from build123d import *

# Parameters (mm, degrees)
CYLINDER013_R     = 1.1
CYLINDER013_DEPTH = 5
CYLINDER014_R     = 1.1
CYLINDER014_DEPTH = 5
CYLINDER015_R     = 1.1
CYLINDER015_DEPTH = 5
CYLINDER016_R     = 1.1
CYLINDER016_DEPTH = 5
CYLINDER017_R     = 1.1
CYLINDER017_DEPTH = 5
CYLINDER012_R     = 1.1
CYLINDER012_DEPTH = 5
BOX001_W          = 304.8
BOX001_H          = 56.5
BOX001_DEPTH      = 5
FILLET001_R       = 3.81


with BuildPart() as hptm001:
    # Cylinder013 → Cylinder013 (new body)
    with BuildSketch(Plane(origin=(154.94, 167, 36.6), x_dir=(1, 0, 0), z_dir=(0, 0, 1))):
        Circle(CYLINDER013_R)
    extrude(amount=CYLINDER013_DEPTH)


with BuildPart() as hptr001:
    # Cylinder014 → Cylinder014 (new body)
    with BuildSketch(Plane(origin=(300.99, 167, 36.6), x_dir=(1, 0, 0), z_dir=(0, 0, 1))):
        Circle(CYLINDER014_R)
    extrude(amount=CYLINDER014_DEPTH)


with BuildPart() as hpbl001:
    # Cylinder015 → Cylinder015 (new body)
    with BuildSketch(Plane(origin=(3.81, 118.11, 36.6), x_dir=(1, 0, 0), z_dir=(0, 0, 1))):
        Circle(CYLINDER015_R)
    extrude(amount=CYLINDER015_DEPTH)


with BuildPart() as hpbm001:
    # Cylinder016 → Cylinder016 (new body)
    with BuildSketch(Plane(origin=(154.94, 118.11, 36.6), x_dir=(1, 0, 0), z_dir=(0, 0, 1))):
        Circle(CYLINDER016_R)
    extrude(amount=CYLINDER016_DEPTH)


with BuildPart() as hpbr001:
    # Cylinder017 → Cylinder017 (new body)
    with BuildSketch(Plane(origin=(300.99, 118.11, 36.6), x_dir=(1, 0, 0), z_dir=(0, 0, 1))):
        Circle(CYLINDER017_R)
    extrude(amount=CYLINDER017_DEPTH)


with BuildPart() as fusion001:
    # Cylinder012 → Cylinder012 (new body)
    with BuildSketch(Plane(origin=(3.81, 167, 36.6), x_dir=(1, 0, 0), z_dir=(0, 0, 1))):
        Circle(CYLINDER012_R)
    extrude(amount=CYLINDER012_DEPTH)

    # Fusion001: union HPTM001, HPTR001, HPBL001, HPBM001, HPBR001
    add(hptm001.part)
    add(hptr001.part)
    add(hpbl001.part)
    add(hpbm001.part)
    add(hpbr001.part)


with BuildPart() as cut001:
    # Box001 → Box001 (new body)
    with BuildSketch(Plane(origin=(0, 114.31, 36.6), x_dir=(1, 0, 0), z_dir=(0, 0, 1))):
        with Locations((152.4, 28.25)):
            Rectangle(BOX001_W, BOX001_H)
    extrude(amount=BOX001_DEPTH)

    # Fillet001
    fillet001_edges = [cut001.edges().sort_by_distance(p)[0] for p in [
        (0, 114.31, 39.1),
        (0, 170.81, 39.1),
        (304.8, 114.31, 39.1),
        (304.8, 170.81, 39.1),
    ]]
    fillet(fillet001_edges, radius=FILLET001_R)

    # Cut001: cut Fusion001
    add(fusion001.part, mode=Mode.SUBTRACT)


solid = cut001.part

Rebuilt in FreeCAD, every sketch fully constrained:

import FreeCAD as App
import Part
import Sketcher
Q = App.Units.Quantity


def edges_at(feature, points):
    """Names of the edges that pass closest to the given points."""
    edges = feature.Shape.Edges
    near = lambda p: min(range(len(edges)), key=lambda i: edges[i].distToShape(Part.Vertex(*p))[0])
    return sorted({f"Edge{near(p) + 1}" for p in points})

doc = App.newDocument("Part")
body = doc.addObject("PartDesign::Body", "Body")

# Sketch on XY plane
sketch1 = body.newObject("Sketcher::SketchObject", "Sketch")
sketch1.AttachmentSupport = (doc.getObject("XY_Plane"), [""])
sketch1.MapMode = "FlatFace"
sketch1.AttachmentOffset = App.Placement(App.Vector(0, 0, 36.6), App.Rotation())
sketch1.addGeometry(Part.Circle(App.Vector(154.94, 167, 0), App.Vector(0, 0, 1), 1.1), False)
sketch1.addConstraint([
    Sketcher.Constraint("Diameter", 0, Q("2.2 mm")),
    Sketcher.Constraint("DistanceY", -1, 1, 0, 3, Q("167 mm")),
    Sketcher.Constraint("DistanceX", -1, 1, 0, 3, Q("154.94 mm")),
])
pad1 = body.newObject("PartDesign::Pad", "Pad")
pad1.Profile = sketch1
pad1.Length = 5
body2 = doc.addObject("PartDesign::Body", "Body001")

# Sketch on XY plane
sketch2 = body2.newObject("Sketcher::SketchObject", "Sketch001")
sketch2.AttachmentSupport = (doc.getObject("XY_Plane001"), [""])
sketch2.MapMode = "FlatFace"
sketch2.AttachmentOffset = App.Placement(App.Vector(0, 0, 36.6), App.Rotation())
sketch2.addGeometry(Part.Circle(App.Vector(300.99, 167, 0), App.Vector(0, 0, 1), 1.1), False)
sketch2.addConstraint([
    Sketcher.Constraint("Diameter", 0, Q("2.2 mm")),
    Sketcher.Constraint("DistanceY", -1, 1, 0, 3, Q("167 mm")),
    Sketcher.Constraint("DistanceX", -1, 1, 0, 3, Q("300.99 mm")),
])
pad2 = body2.newObject("PartDesign::Pad", "Pad001")
pad2.Profile = sketch2
pad2.Length = 5
body3 = doc.addObject("PartDesign::Body", "Body002")

# Sketch on XY plane
sketch3 = body3.newObject("Sketcher::SketchObject", "Sketch002")
sketch3.AttachmentSupport = (doc.getObject("XY_Plane002"), [""])
sketch3.MapMode = "FlatFace"
sketch3.AttachmentOffset = App.Placement(App.Vector(0, 0, 36.6), App.Rotation())
sketch3.addGeometry(Part.Circle(App.Vector(3.81, 118.11, 0), App.Vector(0, 0, 1), 1.1), False)
sketch3.addConstraint([
    Sketcher.Constraint("Diameter", 0, Q("2.2 mm")),
    Sketcher.Constraint("DistanceX", -1, 1, 0, 3, Q("3.81 mm")),
    Sketcher.Constraint("DistanceY", -1, 1, 0, 3, Q("118.11 mm")),
])
pad3 = body3.newObject("PartDesign::Pad", "Pad002")
pad3.Profile = sketch3
pad3.Length = 5
body4 = doc.addObject("PartDesign::Body", "Body003")

# Sketch on XY plane
sketch4 = body4.newObject("Sketcher::SketchObject", "Sketch003")
sketch4.AttachmentSupport = (doc.getObject("XY_Plane003"), [""])
sketch4.MapMode = "FlatFace"
sketch4.AttachmentOffset = App.Placement(App.Vector(0, 0, 36.6), App.Rotation())
sketch4.addGeometry(Part.Circle(App.Vector(154.94, 118.11, 0), App.Vector(0, 0, 1), 1.1), False)
sketch4.addConstraint([
    Sketcher.Constraint("Diameter", 0, Q("2.2 mm")),
    Sketcher.Constraint("DistanceX", -1, 1, 0, 3, Q("154.94 mm")),
    Sketcher.Constraint("DistanceY", -1, 1, 0, 3, Q("118.11 mm")),
])
pad4 = body4.newObject("PartDesign::Pad", "Pad003")
pad4.Profile = sketch4
pad4.Length = 5
body5 = doc.addObject("PartDesign::Body", "Body004")

# Sketch on XY plane
sketch5 = body5.newObject("Sketcher::SketchObject", "Sketch004")
sketch5.AttachmentSupport = (doc.getObject("XY_Plane004"), [""])
sketch5.MapMode = "FlatFace"
sketch5.AttachmentOffset = App.Placement(App.Vector(0, 0, 36.6), App.Rotation())
sketch5.addGeometry(Part.Circle(App.Vector(300.99, 118.11, 0), App.Vector(0, 0, 1), 1.1), False)
sketch5.addConstraint([
    Sketcher.Constraint("Diameter", 0, Q("2.2 mm")),
    Sketcher.Constraint("DistanceX", -1, 1, 0, 3, Q("300.99 mm")),
    Sketcher.Constraint("DistanceY", -1, 1, 0, 3, Q("118.11 mm")),
])
pad5 = body5.newObject("PartDesign::Pad", "Pad004")
pad5.Profile = sketch5
pad5.Length = 5
body6 = doc.addObject("PartDesign::Body", "Body005")
body6.AllowCompound = True

# Sketch on XY plane
sketch6 = body6.newObject("Sketcher::SketchObject", "Sketch005")
sketch6.AttachmentSupport = (doc.getObject("XY_Plane005"), [""])
sketch6.MapMode = "FlatFace"
sketch6.AttachmentOffset = App.Placement(App.Vector(0, 0, 36.6), App.Rotation())
sketch6.addGeometry(Part.Circle(App.Vector(3.81, 167, 0), App.Vector(0, 0, 1), 1.1), False)
sketch6.addConstraint([
    Sketcher.Constraint("Diameter", 0, Q("2.2 mm")),
    Sketcher.Constraint("DistanceY", -1, 1, 0, 3, Q("167 mm")),
    Sketcher.Constraint("DistanceX", -1, 1, 0, 3, Q("3.81 mm")),
])
pad6 = body6.newObject("PartDesign::Pad", "Pad005")
pad6.Profile = sketch6
pad6.Length = 5
doc.recompute()

boolean = body6.newObject("PartDesign::Boolean", "Boolean")
boolean.Type = "Fuse"
boolean.addObjects([body])
doc.recompute()

boolean2 = body6.newObject("PartDesign::Boolean", "Boolean001")
boolean2.Type = "Fuse"
boolean2.addObjects([body2])
doc.recompute()

boolean3 = body6.newObject("PartDesign::Boolean", "Boolean002")
boolean3.Type = "Fuse"
boolean3.addObjects([body3])
doc.recompute()

boolean4 = body6.newObject("PartDesign::Boolean", "Boolean003")
boolean4.Type = "Fuse"
boolean4.addObjects([body4])
doc.recompute()

boolean5 = body6.newObject("PartDesign::Boolean", "Boolean004")
boolean5.Type = "Fuse"
boolean5.addObjects([body5])
body7 = doc.addObject("PartDesign::Body", "Body006")

# Sketch on XY plane
sketch7 = body7.newObject("Sketcher::SketchObject", "Sketch006")
sketch7.AttachmentSupport = (doc.getObject("XY_Plane006"), [""])
sketch7.MapMode = "FlatFace"
sketch7.AttachmentOffset = App.Placement(App.Vector(0, 0, 36.6), App.Rotation())
sketch7.addGeometry([
    Part.LineSegment(App.Vector(0, 170.81, 0), App.Vector(0, 114.31, 0)),
    Part.LineSegment(App.Vector(0, 114.31, 0), App.Vector(304.8, 114.31, 0)),
    Part.LineSegment(App.Vector(304.8, 114.31, 0), App.Vector(304.8, 170.81, 0)),
    Part.LineSegment(App.Vector(304.8, 170.81, 0), App.Vector(0, 170.81, 0)),
], False)
sketch7.addConstraint([
    Sketcher.Constraint("Coincident", 0, 2, 1, 1),
    Sketcher.Constraint("Coincident", 1, 2, 2, 1),
    Sketcher.Constraint("Coincident", 2, 2, 3, 1),
    Sketcher.Constraint("Coincident", 3, 2, 0, 1),
    Sketcher.Constraint("Vertical", 0),
    Sketcher.Constraint("Horizontal", 1),
    Sketcher.Constraint("Vertical", 2),
    Sketcher.Constraint("Horizontal", 3),
    Sketcher.Constraint("PointOnObject", 0, 2, -2),
    Sketcher.Constraint("DistanceX", 1, 1, 1, 2, Q("304.8 mm")),
    Sketcher.Constraint("DistanceY", 0, 2, 0, 1, Q("56.5 mm")),
    Sketcher.Constraint("DistanceY", -1, 1, 0, 2, Q("114.31 mm")),
])
pad7 = body7.newObject("PartDesign::Pad", "Pad006")
pad7.Profile = sketch7
pad7.Length = 5
doc.recompute()

fillet = body7.newObject("PartDesign::Fillet", "Fillet")
fillet.Base = (pad7, edges_at(pad7, [
    (0, 114.31, 39.1),
    (0, 170.81, 39.1),
    (304.8, 114.31, 39.1),
    (304.8, 170.81, 39.1),
]))
fillet.Radius = 3.81
doc.recompute()

boolean6 = body7.newObject("PartDesign::Boolean", "Boolean005")
boolean6.Type = "Cut"
boolean6.addObjects([body6])

doc.recompute()
